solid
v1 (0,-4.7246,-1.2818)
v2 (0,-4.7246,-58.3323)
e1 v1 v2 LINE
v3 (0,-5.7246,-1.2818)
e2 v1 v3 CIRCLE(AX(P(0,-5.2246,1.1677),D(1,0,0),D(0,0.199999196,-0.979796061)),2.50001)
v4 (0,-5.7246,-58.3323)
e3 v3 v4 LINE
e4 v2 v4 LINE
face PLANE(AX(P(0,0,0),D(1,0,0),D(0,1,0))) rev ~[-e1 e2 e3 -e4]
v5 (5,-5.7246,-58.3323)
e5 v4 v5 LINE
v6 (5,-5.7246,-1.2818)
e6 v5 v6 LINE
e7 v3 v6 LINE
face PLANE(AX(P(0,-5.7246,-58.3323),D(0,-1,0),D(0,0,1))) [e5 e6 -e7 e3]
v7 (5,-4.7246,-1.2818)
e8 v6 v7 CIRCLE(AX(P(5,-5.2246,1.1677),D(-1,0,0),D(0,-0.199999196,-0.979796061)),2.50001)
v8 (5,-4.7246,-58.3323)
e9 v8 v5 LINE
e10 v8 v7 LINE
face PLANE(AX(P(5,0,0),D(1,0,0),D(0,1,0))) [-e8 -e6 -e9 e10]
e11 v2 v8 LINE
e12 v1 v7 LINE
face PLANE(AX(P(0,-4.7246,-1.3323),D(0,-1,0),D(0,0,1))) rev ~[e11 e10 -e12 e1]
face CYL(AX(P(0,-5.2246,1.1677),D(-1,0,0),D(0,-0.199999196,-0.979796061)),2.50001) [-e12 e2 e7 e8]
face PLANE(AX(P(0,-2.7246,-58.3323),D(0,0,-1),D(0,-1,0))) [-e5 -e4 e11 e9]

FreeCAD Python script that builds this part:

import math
import FreeCAD as App
import Part
import Sketcher
from FreeCAD import Vector
Q = App.Units.Quantity

doc = App.newDocument("Part")
body = doc.addObject("PartDesign::Body", "Body")

sketch1 = body.newObject("Sketcher::SketchObject", "Sketch")
sketch1.AttachmentSupport = (doc.getObject("YZ_Plane"), [""])
sketch1.MapMode = "FlatFace"
sketch1.addGeometry(Part.LineSegment(Vector(-3, 4, 0), Vector(-8, 4, 0)), False)
sketch1.addGeometry(Part.LineSegment(Vector(-8, 4, 0), Vector(-8, -58, 0)), False)
sketch1.addGeometry(Part.LineSegment(Vector(-8, -58, 0), Vector(-3, -58, 0)), False)
sketch1.addGeometry(Part.LineSegment(Vector(-3, -58, 0), Vector(-3, 4, 0)), False)
sketch1.addConstraint(Sketcher.Constraint("Coincident", 0, 2, 1, 1))
sketch1.addConstraint(Sketcher.Constraint("Coincident", 1, 2, 2, 1))
sketch1.addConstraint(Sketcher.Constraint("Coincident", 2, 2, 3, 1))
sketch1.addConstraint(Sketcher.Constraint("Coincident", 3, 2, 0, 1))
sketch1.addConstraint(Sketcher.Constraint("Horizontal", 0))
sketch1.addConstraint(Sketcher.Constraint("Vertical", 1))
sketch1.addConstraint(Sketcher.Constraint("Horizontal", 2))
sketch1.addConstraint(Sketcher.Constraint("Vertical", 3))
sketch1.addConstraint(Sketcher.Constraint("DistanceX", 0, 2, 0, 1, Q("5 mm")))
sketch1.addConstraint(Sketcher.Constraint("DistanceY", 1, 2, 1, 1, Q("62 mm")))
sketch1.addConstraint(Sketcher.Constraint("DistanceX", 0, 2, -1, 1, Q("7.7246 mm")))
sketch1.addConstraint(Sketcher.Constraint("DistanceY", -1, 1, 0, 2, Q("3.6677 mm")))
pad1 = body.newObject("PartDesign::Pad", "Pad")
pad1.Profile = sketch1
pad1.Length = 5

sketch2 = body.newObject("Sketcher::SketchObject", "Sketch001")
sketch2.AttachmentSupport = (doc.getObject("YZ_Plane"), [""])
sketch2.MapMode = "FlatFace"
sketch2.addGeometry(Part.LineSegment(Vector(-7.7, 1.2, 0), Vector(-7.7, 3.7, 0)), False)
sketch2.addGeometry(Part.LineSegment(Vector(-7.7, 3.7, 0), Vector(-5.2, 3.7, 0)), False)
sketch2.addGeometry(Part.ArcOfCircle(Part.Circle(Vector(-5.2, 1.2, 0), Vector(0, 0, 1), 2.5), math.radians(90), math.radians(180)), False)
sketch2.addGeometry(Part.ArcOfCircle(Part.Circle(Vector(-5.2, 1.2, 0), Vector(0, 0, 1), 2.5), math.radians(0), math.radians(90)), False)
sketch2.addGeometry(Part.LineSegment(Vector(-5.2, 3.7, 0), Vector(-2.7, 3.7, 0)), False)
sketch2.addGeometry(Part.LineSegment(Vector(-2.7, 3.7, 0), Vector(-2.7, 1.2, 0)), False)
sketch2.addGeometry(Part.LineSegment(Vector(-7.7, -58.3, 0), Vector(-7.7, 1.2, 0)), False)
sketch2.addGeometry(Part.ArcOfCircle(Part.Circle(Vector(-5.2, 1.2, 0), Vector(0, 0, 1), 2.5), math.radians(180), math.radians(258)), False)
sketch2.addGeometry(Part.LineSegment(Vector(-5.7, -1.3, 0), Vector(-5.7, -58.3, 0)), False)
sketch2.addGeometry(Part.LineSegment(Vector(-5.7, -58.3, 0), Vector(-7.7, -58.3, 0)), False)
sketch2.addGeometry(Part.ArcOfCircle(Part.Circle(Vector(-5.2, 1.2, 0), Vector(0, 0, 1), 2.5), math.radians(-78), math.radians(0)), False)
sketch2.addGeometry(Part.LineSegment(Vector(-2.7, 1.2, 0), Vector(-2.7, -58.3, 0)), False)
sketch2.addGeometry(Part.LineSegment(Vector(-2.7, -58.3, 0), Vector(-4.7, -58.3, 0)), False)
sketch2.addGeometry(Part.LineSegment(Vector(-4.7, -58.3, 0), Vector(-4.7, -1.3, 0)), False)
sketch2.addConstraint(Sketcher.Constraint("Coincident", 0, 2, 1, 1))
sketch2.addConstraint(Sketcher.Constraint("Tangent", 1, 2, 2, 1))
sketch2.addConstraint(Sketcher.Constraint("Tangent", 2, 2, 0, 1))
sketch2.addConstraint(Sketcher.Constraint("Tangent", 3, 2, 4, 1))
sketch2.addConstraint(Sketcher.Constraint("Coincident", 4, 2, 5, 1))
sketch2.addConstraint(Sketcher.Constraint("Tangent", 5, 2, 3, 1))
sketch2.addConstraint(Sketcher.Constraint("Tangent", 6, 2, 7, 1))
sketch2.addConstraint(Sketcher.Constraint("Coincident", 7, 2, 8, 1))
sketch2.addConstraint(Sketcher.Constraint("Coincident", 8, 2, 9, 1))
sketch2.addConstraint(Sketcher.Constraint("Coincident", 9, 2, 6, 1))
sketch2.addConstraint(Sketcher.Constraint("Tangent", 10, 2, 11, 1))
sketch2.addConstraint(Sketcher.Constraint("Coincident", 11, 2, 12, 1))
sketch2.addConstraint(Sketcher.Constraint("Coincident", 12, 2, 13, 1))
sketch2.addConstraint(Sketcher.Constraint("Coincident", 13, 2, 10, 1))
sketch2.addConstraint(Sketcher.Constraint("Vertical", 0))
sketch2.addConstraint(Sketcher.Constraint("Horizontal", 1))
sketch2.addConstraint(Sketcher.Constraint("Horizontal", 4))
sketch2.addConstraint(Sketcher.Constraint("Vertical", 5))
sketch2.addConstraint(Sketcher.Constraint("Vertical", 6))
sketch2.addConstraint(Sketcher.Constraint("Vertical", 8))
sketch2.addConstraint(Sketcher.Constraint("Horizontal", 9))
sketch2.addConstraint(Sketcher.Constraint("Vertical", 11))
sketch2.addConstraint(Sketcher.Constraint("Horizontal", 12))
sketch2.addConstraint(Sketcher.Constraint("Vertical", 13))
sketch2.addConstraint(Sketcher.Constraint("Coincident", 3, 3, 2, 3))
sketch2.addConstraint(Sketcher.Constraint("Coincident", 7, 3, 2, 3))
sketch2.addConstraint(Sketcher.Constraint("Coincident", 10, 3, 2, 3))
sketch2.addConstraint(Sketcher.Constraint("Equal", 2, 3))
sketch2.addConstraint(Sketcher.Constraint("Equal", 3, 7))
sketch2.addConstraint(Sketcher.Constraint("Equal", 7, 10))
sketch2.addConstraint(Sketcher.Constraint("Horizontal", 9, 2, 11, 2))
sketch2.addConstraint(Sketcher.Constraint("Horizontal", 7, 2, 13, 2))
sketch2.addConstraint(Sketcher.Constraint("Radius", 2, Q("2.5 mm")))
sketch2.addConstraint(Sketcher.Constraint("DistanceX", 9, 2, 9, 1, Q("2 mm")))
sketch2.addConstraint(Sketcher.Constraint("DistanceY", 6, 1, 6, 2, Q("59.5 mm")))
sketch2.addConstraint(Sketcher.Constraint("DistanceX", 2, 3, -1, 1, Q("5.2246 mm")))
sketch2.addConstraint(Sketcher.Constraint("DistanceY", -1, 1, 2, 3, Q("1.1677 mm")))
pocket1 = body.newObject("PartDesign::Pocket", "Pocket")
pocket1.Profile = sketch2
pocket1.Length = 5
pocket1.Reversed = True

doc.recompute()
